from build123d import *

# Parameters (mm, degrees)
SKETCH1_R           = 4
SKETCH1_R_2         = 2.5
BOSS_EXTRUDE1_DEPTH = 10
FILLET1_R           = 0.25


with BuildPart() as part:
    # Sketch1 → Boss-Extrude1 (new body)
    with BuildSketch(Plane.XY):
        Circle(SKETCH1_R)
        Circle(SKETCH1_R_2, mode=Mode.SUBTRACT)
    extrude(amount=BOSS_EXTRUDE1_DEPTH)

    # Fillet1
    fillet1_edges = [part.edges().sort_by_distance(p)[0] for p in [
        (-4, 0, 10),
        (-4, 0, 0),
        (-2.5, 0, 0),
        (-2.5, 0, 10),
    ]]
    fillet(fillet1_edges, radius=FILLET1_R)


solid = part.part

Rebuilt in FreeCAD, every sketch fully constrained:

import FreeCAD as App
import Part
import Sketcher

V = App.Vector


def edges_at(feature, points):
    """Names of the edges that pass closest to the given points."""
    edges = feature.Shape.Edges
    near = lambda p: min(range(len(edges)), key=lambda i: edges[i].distToShape(Part.Vertex(*p))[0])
    return sorted({f"Edge{near(p) + 1}" for p in points})

doc = App.newDocument("Part")
body = doc.addObject("PartDesign::Body", "Body")

sketch1 = body.newObject("Sketcher::SketchObject", "Sketch")
sketch1.AttachmentSupport = (doc.getObject("XY_Plane"), [""])
sketch1.MapMode = "FlatFace"
sketch1.addGeometry([
    Part.Circle(V(0, 0, 0), V(0, 0, 1), 4),
    Part.Circle(V(0, 0, 0), V(0, 0, 1), 2.5),
], False)
sketch1.addConstraint([
    Sketcher.Constraint("Coincident", 0, 3, -1, 1),
    Sketcher.Constraint("Coincident", 1, 3, -1, 1),
    Sketcher.Constraint("Diameter", 0, 8.0),
    Sketcher.Constraint("Diameter", 1, 5.0),
])
pad1 = body.newObject("PartDesign::Pad", "Pad")
pad1.Profile = sketch1
pad1.Length = 10
doc.recompute()

fillet = body.newObject("PartDesign::Fillet", "Fillet")
fillet.Base = (pad1, edges_at(pad1, [
    (-4, 0, 10),
    (-4, 0, 0),
    (-2.5, 0, 0),
    (-2.5, 0, 10),
]))
fillet.Radius = 0.25

doc.recompute()
